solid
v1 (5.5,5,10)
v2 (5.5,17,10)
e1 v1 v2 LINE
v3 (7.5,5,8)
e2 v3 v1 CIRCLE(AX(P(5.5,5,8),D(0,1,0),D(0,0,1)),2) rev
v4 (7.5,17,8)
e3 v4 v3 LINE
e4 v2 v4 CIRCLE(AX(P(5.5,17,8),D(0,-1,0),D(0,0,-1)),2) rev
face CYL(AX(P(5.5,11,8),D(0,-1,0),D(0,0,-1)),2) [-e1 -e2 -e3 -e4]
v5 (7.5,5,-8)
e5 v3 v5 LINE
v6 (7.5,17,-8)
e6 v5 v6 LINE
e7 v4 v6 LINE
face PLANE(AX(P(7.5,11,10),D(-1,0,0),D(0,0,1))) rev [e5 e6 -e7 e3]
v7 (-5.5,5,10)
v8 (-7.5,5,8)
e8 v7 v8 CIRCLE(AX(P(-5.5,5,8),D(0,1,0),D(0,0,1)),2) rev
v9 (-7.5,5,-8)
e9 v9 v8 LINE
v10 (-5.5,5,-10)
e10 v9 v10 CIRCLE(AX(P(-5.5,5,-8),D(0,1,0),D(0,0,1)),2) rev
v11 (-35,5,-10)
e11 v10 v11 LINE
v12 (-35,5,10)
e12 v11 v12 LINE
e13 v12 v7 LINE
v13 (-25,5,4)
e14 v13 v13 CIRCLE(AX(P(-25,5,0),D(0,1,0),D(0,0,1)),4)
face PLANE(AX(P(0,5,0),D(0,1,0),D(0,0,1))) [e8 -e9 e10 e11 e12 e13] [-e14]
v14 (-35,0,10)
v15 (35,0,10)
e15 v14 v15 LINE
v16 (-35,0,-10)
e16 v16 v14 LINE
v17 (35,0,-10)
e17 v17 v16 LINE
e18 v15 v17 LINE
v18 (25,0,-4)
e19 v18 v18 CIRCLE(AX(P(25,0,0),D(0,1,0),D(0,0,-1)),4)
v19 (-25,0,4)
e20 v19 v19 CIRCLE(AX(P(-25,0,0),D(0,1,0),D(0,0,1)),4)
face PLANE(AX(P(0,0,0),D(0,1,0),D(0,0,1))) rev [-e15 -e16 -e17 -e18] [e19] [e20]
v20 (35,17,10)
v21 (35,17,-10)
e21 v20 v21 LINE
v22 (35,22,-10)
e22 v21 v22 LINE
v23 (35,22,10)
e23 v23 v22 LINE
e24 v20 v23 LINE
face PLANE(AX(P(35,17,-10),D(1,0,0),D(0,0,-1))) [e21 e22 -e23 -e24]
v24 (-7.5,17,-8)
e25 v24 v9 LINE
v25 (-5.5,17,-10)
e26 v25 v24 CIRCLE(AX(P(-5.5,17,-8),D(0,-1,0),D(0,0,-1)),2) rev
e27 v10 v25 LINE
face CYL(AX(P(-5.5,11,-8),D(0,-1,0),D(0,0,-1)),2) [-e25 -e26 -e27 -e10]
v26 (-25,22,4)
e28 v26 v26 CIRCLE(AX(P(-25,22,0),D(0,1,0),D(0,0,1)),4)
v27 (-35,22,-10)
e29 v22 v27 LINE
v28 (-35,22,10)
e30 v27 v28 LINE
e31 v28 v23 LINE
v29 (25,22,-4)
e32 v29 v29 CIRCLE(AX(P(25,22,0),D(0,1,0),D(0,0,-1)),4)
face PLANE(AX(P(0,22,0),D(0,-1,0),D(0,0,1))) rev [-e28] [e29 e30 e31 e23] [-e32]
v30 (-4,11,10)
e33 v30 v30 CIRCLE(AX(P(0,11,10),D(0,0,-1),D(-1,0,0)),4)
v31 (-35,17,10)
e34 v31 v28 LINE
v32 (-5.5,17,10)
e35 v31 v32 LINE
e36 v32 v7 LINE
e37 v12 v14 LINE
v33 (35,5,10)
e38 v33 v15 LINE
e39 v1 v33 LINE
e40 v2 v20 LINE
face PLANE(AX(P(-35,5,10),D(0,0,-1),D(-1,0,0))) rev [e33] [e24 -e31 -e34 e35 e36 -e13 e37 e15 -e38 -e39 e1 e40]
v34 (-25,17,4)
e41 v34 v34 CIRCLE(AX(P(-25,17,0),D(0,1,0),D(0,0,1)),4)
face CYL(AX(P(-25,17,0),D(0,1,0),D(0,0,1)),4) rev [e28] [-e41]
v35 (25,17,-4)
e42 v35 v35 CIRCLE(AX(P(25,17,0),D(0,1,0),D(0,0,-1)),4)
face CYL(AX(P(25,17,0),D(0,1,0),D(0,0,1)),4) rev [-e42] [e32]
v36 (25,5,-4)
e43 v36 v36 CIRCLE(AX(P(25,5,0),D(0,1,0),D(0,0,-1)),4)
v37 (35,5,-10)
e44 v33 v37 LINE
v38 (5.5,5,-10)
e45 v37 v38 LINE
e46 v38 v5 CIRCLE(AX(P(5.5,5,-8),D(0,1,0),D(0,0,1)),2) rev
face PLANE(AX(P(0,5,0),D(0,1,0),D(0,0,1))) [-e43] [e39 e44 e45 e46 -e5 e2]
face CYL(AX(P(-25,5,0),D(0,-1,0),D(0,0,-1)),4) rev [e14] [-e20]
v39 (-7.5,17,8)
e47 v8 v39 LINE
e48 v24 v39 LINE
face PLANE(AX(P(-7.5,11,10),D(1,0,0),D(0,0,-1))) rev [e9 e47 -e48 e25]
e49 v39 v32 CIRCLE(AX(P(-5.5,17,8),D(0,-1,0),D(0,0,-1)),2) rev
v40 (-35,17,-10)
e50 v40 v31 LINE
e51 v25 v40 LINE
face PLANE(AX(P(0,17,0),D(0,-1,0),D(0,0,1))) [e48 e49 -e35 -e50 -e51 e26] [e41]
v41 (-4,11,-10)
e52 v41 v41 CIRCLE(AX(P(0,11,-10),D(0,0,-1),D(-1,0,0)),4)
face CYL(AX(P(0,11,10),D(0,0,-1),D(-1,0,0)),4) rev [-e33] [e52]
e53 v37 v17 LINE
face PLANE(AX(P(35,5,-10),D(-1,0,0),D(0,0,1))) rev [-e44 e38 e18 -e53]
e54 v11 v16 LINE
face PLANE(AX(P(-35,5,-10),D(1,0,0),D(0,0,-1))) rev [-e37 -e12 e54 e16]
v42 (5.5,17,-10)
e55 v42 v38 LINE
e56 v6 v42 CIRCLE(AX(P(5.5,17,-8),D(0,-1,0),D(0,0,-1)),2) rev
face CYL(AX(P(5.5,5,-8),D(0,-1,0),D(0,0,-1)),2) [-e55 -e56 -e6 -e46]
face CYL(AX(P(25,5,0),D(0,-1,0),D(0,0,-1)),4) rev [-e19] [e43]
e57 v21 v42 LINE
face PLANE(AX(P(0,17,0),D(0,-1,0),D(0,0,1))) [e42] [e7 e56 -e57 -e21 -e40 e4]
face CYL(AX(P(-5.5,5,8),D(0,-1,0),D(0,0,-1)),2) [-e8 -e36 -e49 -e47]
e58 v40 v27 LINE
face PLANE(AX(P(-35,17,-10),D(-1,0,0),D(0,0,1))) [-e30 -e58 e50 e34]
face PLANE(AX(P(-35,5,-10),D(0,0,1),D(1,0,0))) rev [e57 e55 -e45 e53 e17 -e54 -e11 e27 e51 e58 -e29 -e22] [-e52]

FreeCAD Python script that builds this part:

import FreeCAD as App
import Part
import Sketcher
from FreeCAD import Vector
Q = App.Units.Quantity


def edges_at(feature, points):
    """Names of the edges that pass closest to the given points."""
    edges = feature.Shape.Edges
    near = lambda p: min(range(len(edges)), key=lambda i: edges[i].distToShape(Part.Vertex(*p))[0])
    return sorted({f"Edge{near(p) + 1}" for p in points})

doc = App.newDocument("Part")
params = doc.addObject("Spreadsheet::Sheet", "Params")
for row, (alias, value) in enumerate([
    ("sketch1_diameter", "8 mm"),
    ("sketch1_width", "70 mm"),
    ("sketch1_height", "20 mm"),
    ("pad1_length", "5 mm"),
    ("sketch2_width", "15 mm"),
    ("sketch2_height", "20 mm"),
    ("pad2_length", "6 mm"),
    ("sketch3_diameter", "8 mm"),
    ("fillet_radius", "2 mm"),
], start=1):
    params.set(f"A{row}", alias)
    params.set(f"B{row}", "=" + value)
    params.setAlias(f"B{row}", alias)

body = doc.addObject("PartDesign::Body", "Body")

# Sketch on XZ plane
sketch1 = doc.addObject("Sketcher::SketchObject", "Sketch")
body.addObject(sketch1)
sketch1.AttachmentSupport = (doc.XZ_Plane, [""])
sketch1.MapMode = "FlatFace"
sketch1.addGeometry([
    Part.LineSegment(Vector(-35, -10, 0), Vector(-35, 10, 0)),  # 0
    Part.LineSegment(Vector(-35, 10, 0), Vector(35, 10, 0)),  # 1
    Part.LineSegment(Vector(35, 10, 0), Vector(35, -10, 0)),  # 2
    Part.LineSegment(Vector(35, -10, 0), Vector(-35, -10, 0)),  # 3
    Part.Circle(Vector(-25, 0, 0), Vector(0, 0, 1), 4),  # 4
    Part.Circle(Vector(25, 0, 0), Vector(0, 0, 1), 4),  # 5
], False)
sketch1.addConstraint([
    Sketcher.Constraint("Coincident", 0, 2, 1, 1),
    Sketcher.Constraint("Coincident", 1, 2, 2, 1),
    Sketcher.Constraint("Coincident", 2, 2, 3, 1),
    Sketcher.Constraint("Coincident", 3, 2, 0, 1),
    Sketcher.Constraint("Vertical", 0),
    Sketcher.Constraint("Horizontal", 1),
    Sketcher.Constraint("Vertical", 2),
    Sketcher.Constraint("Horizontal", 3),
    Sketcher.Constraint("Equal", 4, 5),
    Sketcher.Constraint("Symmetric", 4, 3, 5, 3, -1, 1),
    Sketcher.Constraint("Symmetric", 0, 2, 2, 2, -1, 1),
    Sketcher.Constraint("PointOnObject", 4, 3, -1),
    Sketcher.Constraint("Diameter", 4, Q("8 mm")),
    Sketcher.Constraint("DistanceX", 1, 1, 1, 2, Q("70 mm")),
    Sketcher.Constraint("DistanceY", 0, 1, 0, 2, Q("20 mm")),
    Sketcher.Constraint("DistanceX", 4, 3, -1, 1, Q("25 mm")),
])
sketch1.setExpression("Constraints[12]", "Params.sketch1_diameter")
sketch1.setExpression("Constraints[13]", "Params.sketch1_width")
sketch1.setExpression("Constraints[14]", "Params.sketch1_height")
pad1 = doc.addObject("PartDesign::Pad", "Pad")
body.addObject(pad1)
pad1.Profile = sketch1
pad1.setExpression("Length", "Params.pad1_length")
pad1.Reversed = True

# Sketch on XZ plane
sketch2 = doc.addObject("Sketcher::SketchObject", "Sketch001")
body.addObject(sketch2)
sketch2.AttachmentSupport = (doc.XZ_Plane, [""])
sketch2.MapMode = "FlatFace"
sketch2.AttachmentOffset = App.Placement(Vector(0, 0, -5), App.Rotation())
sketch2.addGeometry([
    Part.LineSegment(Vector(-7.5, -10, 0), Vector(-7.5, 10, 0)),
    Part.LineSegment(Vector(-7.5, 10, 0), Vector(7.5, 10, 0)),
    Part.LineSegment(Vector(7.5, 10, 0), Vector(7.5, -10, 0)),
    Part.LineSegment(Vector(7.5, -10, 0), Vector(-7.5, -10, 0)),
], False)
sketch2.addConstraint([
    Sketcher.Constraint("Coincident", 0, 2, 1, 1),
    Sketcher.Constraint("Coincident", 1, 2, 2, 1),
    Sketcher.Constraint("Coincident", 2, 2, 3, 1),
    Sketcher.Constraint("Coincident", 3, 2, 0, 1),
    Sketcher.Constraint("Vertical", 0),
    Sketcher.Constraint("Horizontal", 1),
    Sketcher.Constraint("Vertical", 2),
    Sketcher.Constraint("Horizontal", 3),
    Sketcher.Constraint("Symmetric", 0, 2, 2, 2, -1, 1),
    Sketcher.Constraint("DistanceX", 1, 1, 1, 2, Q("15 mm")),
    Sketcher.Constraint("DistanceY", 0, 1, 0, 2, Q("20 mm")),
])
sketch2.setExpression("Constraints[9]", "Params.sketch2_width")
sketch2.setExpression("Constraints[10]", "Params.sketch2_height")
pad2 = doc.addObject("PartDesign::Pad", "Pad001")
body.addObject(pad2)
pad2.Profile = sketch2
pad2.setExpression("Length", "Params.pad2_length")
pad2.Reversed = True
doc.recompute()

datumplane = doc.addObject("PartDesign::Plane", "DatumPlane")
body.addObject(datumplane)
datumplane.AttachmentSupport = (doc.XZ_Plane, [""])
datumplane.MapMode = "FlatFace"
datumplane.AttachmentOffset = App.Placement(Vector(0, 0, -11), App.Rotation())
mirrored = doc.addObject("PartDesign::Mirrored", "Mirrored")
body.addObject(mirrored)
mirrored.Originals = [pad2]
mirrored.MirrorPlane = (datumplane, [""])
body.Tip = mirrored
doc.recompute()

datumplane2 = doc.addObject("PartDesign::Plane", "DatumPlane001")
body.addObject(datumplane2)
datumplane2.AttachmentSupport = (doc.XZ_Plane, [""])
datumplane2.MapMode = "FlatFace"
datumplane2.AttachmentOffset = App.Placement(Vector(0, 0, -11), App.Rotation())
mirrored2 = doc.addObject("PartDesign::Mirrored", "Mirrored001")
body.addObject(mirrored2)
mirrored2.Originals = [pad1]
mirrored2.MirrorPlane = (datumplane2, [""])
body.Tip = mirrored2

# Sketch on XY plane
sketch3 = doc.addObject("Sketcher::SketchObject", "Sketch002")
body.addObject(sketch3)
sketch3.AttachmentSupport = (doc.XY_Plane, [""])
sketch3.MapMode = "FlatFace"
sketch3.AttachmentOffset = App.Placement(Vector(0, 0, -10), App.Rotation())
sketch3.addGeometry(Part.Circle(Vector(0, 11, 0), Vector(0, 0, 1), 4), False)
sketch3.addConstraint([
    Sketcher.Constraint("PointOnObject", 0, 3, -2),
    Sketcher.Constraint("Diameter", 0, Q("8 mm")),
    Sketcher.Constraint("DistanceY", -1, 1, 0, 3, Q("11 mm")),
])
sketch3.setExpression("Constraints[1]", "Params.sketch3_diameter")
pocket1 = doc.addObject("PartDesign::Pocket", "Pocket")
body.addObject(pocket1)
pocket1.Profile = sketch3
pocket1.Type = "ThroughAll"
pocket1.Reversed = True
doc.recompute()

fillet = doc.addObject("PartDesign::Fillet", "Fillet")
body.addObject(fillet)
fillet.Base = (pocket1, edges_at(pocket1, [
    (7.5, 11, 10),
    (7.5, 11, -10),
    (-7.5, 11, -10),
    (-7.5, 11, 10),
]))
fillet.setExpression("Radius", "Params.fillet_radius")

doc.recompute()
